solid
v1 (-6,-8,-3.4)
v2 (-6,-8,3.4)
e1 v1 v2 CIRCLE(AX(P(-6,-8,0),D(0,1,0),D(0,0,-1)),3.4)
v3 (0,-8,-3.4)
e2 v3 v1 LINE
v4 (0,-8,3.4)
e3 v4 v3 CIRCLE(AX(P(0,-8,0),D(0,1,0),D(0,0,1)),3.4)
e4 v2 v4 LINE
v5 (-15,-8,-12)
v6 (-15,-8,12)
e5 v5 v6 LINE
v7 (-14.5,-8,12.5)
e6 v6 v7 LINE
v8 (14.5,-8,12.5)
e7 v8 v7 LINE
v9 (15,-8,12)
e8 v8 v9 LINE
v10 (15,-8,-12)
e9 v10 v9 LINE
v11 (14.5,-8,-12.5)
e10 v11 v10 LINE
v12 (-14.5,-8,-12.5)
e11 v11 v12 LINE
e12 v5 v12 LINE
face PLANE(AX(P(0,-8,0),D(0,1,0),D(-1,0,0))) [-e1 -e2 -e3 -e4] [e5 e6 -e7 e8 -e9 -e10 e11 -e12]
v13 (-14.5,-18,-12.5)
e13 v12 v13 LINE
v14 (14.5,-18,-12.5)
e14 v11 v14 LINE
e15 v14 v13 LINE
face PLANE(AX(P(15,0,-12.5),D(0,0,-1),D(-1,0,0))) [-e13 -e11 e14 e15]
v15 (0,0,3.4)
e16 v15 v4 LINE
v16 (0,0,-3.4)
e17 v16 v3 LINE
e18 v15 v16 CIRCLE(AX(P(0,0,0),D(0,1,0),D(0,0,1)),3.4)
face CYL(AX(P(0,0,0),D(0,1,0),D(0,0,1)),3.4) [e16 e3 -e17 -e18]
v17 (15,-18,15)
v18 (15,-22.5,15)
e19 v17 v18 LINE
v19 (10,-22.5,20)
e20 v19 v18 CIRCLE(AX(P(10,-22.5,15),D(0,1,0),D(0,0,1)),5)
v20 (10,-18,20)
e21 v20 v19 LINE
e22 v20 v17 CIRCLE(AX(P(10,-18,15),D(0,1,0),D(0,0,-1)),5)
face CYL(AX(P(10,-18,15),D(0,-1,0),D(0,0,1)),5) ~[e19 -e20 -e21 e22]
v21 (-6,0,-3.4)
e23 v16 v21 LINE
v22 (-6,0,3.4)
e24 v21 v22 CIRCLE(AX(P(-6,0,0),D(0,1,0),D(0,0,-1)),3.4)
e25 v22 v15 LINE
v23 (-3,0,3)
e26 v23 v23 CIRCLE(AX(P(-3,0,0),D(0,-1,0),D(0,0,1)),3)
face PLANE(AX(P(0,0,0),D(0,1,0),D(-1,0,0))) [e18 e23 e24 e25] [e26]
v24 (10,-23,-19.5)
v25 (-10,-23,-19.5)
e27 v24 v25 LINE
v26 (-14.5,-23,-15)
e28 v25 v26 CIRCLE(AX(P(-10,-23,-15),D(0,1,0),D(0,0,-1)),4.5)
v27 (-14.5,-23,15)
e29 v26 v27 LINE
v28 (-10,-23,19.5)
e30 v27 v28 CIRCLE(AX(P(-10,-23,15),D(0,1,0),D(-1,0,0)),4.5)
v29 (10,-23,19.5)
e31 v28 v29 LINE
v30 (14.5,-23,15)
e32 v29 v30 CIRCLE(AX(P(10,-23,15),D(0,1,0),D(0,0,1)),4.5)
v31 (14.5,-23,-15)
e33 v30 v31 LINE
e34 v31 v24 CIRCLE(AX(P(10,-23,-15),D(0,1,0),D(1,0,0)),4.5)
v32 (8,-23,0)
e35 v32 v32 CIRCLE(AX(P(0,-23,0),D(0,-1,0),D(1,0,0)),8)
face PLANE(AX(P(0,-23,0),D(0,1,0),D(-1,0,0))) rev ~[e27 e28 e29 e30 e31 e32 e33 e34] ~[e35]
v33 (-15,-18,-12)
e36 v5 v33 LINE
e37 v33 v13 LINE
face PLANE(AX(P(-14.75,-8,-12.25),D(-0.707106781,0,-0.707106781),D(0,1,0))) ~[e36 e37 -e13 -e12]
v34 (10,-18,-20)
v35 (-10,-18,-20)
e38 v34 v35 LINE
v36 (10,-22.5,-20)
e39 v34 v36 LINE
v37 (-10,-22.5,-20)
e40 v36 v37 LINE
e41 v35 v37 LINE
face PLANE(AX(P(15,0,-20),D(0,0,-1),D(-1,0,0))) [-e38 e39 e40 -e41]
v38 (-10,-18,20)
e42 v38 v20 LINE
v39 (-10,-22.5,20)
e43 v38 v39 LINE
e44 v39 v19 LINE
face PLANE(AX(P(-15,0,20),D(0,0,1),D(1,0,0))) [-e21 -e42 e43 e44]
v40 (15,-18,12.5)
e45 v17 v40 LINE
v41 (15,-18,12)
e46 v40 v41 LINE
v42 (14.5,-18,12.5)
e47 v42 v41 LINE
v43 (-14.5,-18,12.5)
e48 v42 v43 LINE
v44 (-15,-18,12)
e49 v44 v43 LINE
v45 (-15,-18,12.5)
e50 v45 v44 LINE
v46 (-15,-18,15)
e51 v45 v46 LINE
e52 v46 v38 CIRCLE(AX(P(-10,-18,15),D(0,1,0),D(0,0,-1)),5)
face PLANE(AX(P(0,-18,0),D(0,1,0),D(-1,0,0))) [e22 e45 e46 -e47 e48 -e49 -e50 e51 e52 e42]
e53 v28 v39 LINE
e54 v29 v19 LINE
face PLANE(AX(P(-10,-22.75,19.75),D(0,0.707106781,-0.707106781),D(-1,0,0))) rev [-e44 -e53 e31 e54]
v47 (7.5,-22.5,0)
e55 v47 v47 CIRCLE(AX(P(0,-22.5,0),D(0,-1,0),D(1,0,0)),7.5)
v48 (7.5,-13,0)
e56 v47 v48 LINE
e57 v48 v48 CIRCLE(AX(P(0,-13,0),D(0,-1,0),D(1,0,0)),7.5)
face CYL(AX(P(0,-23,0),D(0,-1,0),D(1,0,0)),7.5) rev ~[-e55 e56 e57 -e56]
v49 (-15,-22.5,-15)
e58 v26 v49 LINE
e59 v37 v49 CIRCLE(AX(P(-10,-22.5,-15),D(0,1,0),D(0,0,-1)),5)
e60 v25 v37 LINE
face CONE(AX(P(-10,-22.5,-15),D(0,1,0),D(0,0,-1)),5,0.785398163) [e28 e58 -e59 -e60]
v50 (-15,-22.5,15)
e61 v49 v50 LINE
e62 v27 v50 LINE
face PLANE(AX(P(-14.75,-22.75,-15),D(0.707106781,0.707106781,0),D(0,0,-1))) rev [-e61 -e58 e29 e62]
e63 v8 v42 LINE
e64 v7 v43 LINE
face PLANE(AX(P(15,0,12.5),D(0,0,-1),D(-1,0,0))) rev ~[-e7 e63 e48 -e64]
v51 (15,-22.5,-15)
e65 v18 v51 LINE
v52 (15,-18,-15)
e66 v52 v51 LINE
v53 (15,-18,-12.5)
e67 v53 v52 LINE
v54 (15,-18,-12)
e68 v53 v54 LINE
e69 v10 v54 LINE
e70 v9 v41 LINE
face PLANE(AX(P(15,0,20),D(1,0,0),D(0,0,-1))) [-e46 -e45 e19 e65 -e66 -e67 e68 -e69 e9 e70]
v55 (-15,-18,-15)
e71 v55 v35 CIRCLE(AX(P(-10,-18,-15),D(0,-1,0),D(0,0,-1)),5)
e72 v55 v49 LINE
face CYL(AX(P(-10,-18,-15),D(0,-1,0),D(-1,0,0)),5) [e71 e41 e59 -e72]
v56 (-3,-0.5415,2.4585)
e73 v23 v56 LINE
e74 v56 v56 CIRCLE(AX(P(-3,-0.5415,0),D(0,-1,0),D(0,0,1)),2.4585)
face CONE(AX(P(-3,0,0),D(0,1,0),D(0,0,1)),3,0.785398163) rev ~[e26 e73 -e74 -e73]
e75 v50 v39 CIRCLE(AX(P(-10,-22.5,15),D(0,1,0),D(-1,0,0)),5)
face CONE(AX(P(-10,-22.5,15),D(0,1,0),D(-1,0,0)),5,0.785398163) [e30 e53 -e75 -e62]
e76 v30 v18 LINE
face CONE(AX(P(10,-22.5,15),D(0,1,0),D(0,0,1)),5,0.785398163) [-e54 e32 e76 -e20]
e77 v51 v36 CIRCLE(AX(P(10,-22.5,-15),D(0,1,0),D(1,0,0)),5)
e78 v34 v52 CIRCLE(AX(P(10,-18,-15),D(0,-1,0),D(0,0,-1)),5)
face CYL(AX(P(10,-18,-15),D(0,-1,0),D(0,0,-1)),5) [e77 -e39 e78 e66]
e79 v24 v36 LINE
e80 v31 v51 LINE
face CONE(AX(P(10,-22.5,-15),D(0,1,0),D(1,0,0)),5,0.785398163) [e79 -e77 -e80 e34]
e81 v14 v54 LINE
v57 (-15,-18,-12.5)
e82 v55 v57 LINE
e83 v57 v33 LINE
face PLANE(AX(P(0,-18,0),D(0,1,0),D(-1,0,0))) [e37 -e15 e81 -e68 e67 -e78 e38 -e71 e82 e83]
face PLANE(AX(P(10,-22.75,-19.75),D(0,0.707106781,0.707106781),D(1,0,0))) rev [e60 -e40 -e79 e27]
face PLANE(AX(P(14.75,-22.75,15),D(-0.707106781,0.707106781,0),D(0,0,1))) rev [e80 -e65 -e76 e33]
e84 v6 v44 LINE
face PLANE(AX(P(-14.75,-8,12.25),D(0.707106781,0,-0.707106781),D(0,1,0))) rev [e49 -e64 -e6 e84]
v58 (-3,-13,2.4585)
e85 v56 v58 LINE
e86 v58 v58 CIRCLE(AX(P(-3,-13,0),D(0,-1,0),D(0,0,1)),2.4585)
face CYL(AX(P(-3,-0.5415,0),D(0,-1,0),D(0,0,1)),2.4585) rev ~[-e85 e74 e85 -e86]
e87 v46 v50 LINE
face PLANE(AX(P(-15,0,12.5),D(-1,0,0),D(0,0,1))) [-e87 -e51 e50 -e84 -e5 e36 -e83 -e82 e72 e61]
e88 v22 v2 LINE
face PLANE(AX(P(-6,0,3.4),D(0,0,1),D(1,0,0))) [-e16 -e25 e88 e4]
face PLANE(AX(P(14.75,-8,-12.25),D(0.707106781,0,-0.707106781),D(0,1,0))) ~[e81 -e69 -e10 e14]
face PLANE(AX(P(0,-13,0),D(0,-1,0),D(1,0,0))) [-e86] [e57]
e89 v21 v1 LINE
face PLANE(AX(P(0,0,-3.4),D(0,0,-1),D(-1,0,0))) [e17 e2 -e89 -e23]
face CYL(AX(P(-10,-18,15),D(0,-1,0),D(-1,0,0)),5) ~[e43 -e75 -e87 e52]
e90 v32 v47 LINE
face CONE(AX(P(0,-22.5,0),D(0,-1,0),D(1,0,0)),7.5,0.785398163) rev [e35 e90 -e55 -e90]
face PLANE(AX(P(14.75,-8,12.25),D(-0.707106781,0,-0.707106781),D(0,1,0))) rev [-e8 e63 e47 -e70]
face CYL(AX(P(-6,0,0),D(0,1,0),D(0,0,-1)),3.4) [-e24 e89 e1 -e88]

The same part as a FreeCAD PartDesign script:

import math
import FreeCAD as App
import Part
import Sketcher
from FreeCAD import Vector


def edges_at(feature, points):
    """Names of the edges that pass closest to the given points."""
    edges = feature.Shape.Edges
    near = lambda p: min(range(len(edges)), key=lambda i: edges[i].distToShape(Part.Vertex(*p))[0])
    return sorted({f"Edge{near(p) + 1}" for p in points})

doc = App.newDocument("Part")
body = doc.addObject("PartDesign::Body", "Body")

sketch1 = doc.addObject("Sketcher::SketchObject", "Sketch")
body.addObject(sketch1)
sketch1.AttachmentSupport = (doc.XZ_Plane, [""])
sketch1.MapMode = "FlatFace"
sketch1.addGeometry([
    Part.LineSegment(Vector(-15, 20, 0), Vector(15, 20, 0)),
    Part.LineSegment(Vector(15, 20, 0), Vector(15, -20, 0)),
    Part.LineSegment(Vector(15, -20, 0), Vector(-15, -20, 0)),
    Part.LineSegment(Vector(-15, -20, 0), Vector(-15, 20, 0)),
], False)
sketch1.addConstraint([
    Sketcher.Constraint("Coincident", 0, 2, 1, 1),
    Sketcher.Constraint("Coincident", 1, 2, 2, 1),
    Sketcher.Constraint("Coincident", 2, 2, 3, 1),
    Sketcher.Constraint("Coincident", 3, 2, 0, 1),
    Sketcher.Constraint("Horizontal", 0),
    Sketcher.Constraint("Vertical", 1),
    Sketcher.Constraint("Horizontal", 2),
    Sketcher.Constraint("Vertical", 3),
    Sketcher.Constraint("Symmetric", 0, 2, 2, 2, -1, 1),
    Sketcher.Constraint("DistanceX", 0, 1, 0, 2, 30.0),
    Sketcher.Constraint("DistanceY", 1, 2, 1, 1, 40.0),
])
pad1 = doc.addObject("PartDesign::Pad", "Pad")
body.addObject(pad1)
pad1.Profile = sketch1
pad1.Length = 23

sketch2 = doc.addObject("Sketcher::SketchObject", "Sketch001")
body.addObject(sketch2)
sketch2.AttachmentSupport = (doc.XZ_Plane, [""])
sketch2.MapMode = "FlatFace"
sketch2.addGeometry([
    Part.LineSegment(Vector(-15, 20, 0), Vector(15, 20, 0)),
    Part.LineSegment(Vector(15, 20, 0), Vector(15, -20, 0)),
    Part.LineSegment(Vector(15, -20, 0), Vector(-15, -20, 0)),
    Part.LineSegment(Vector(-15, -20, 0), Vector(-15, 20, 0)),
    Part.ArcOfCircle(Part.Circle(Vector(-6, 0, 0), Vector(0, 0, 1), 3.4), math.radians(90), math.radians(270)),
    Part.LineSegment(Vector(-6, -3.4, 0), Vector(0, -3.4, 0)),
    Part.ArcOfCircle(Part.Circle(Vector(0, 0, 0), Vector(0, 0, 1), 3.4), math.radians(-90), math.radians(90)),
    Part.LineSegment(Vector(0, 3.4, 0), Vector(-6, 3.4, 0)),
], False)
sketch2.addConstraint([
    Sketcher.Constraint("Coincident", 0, 2, 1, 1),
    Sketcher.Constraint("Coincident", 1, 2, 2, 1),
    Sketcher.Constraint("Coincident", 2, 2, 3, 1),
    Sketcher.Constraint("Coincident", 3, 2, 0, 1),
    Sketcher.Constraint("Tangent", 4, 2, 5, 1),
    Sketcher.Constraint("Tangent", 5, 2, 6, 1),
    Sketcher.Constraint("Tangent", 6, 2, 7, 1),
    Sketcher.Constraint("Tangent", 7, 2, 4, 1),
    Sketcher.Constraint("Horizontal", 0),
    Sketcher.Constraint("Vertical", 1),
    Sketcher.Constraint("Horizontal", 2),
    Sketcher.Constraint("Vertical", 3),
    Sketcher.Constraint("Horizontal", 5),
    Sketcher.Constraint("Horizontal", 7),
    Sketcher.Constraint("Coincident", 6, 3, -1, 1),
    Sketcher.Constraint("Symmetric", 0, 2, 2, 2, -1, 1),
    Sketcher.Constraint("Radius", 4, 3.4),
    Sketcher.Constraint("DistanceX", 0, 1, 0, 2, 30.0),
    Sketcher.Constraint("DistanceX", 5, 1, 5, 2, 6.0),
    Sketcher.Constraint("DistanceY", 1, 2, 1, 1, 40.0),
])
pocket1 = doc.addObject("PartDesign::Pocket", "Pocket")
body.addObject(pocket1)
pocket1.Profile = sketch2
pocket1.Length = 8
pocket1.Reversed = True

sketch3 = doc.addObject("Sketcher::SketchObject", "Sketch002")
body.addObject(sketch3)
sketch3.AttachmentSupport = (doc.XZ_Plane, [""])
sketch3.MapMode = "FlatFace"
sketch3.AttachmentOffset = App.Placement(Vector(0, 0, 23), App.Rotation())
sketch3.addGeometry(Part.Circle(Vector(0, 0, 0), Vector(0, 0, 1), 8), False)
sketch3.addConstraint([
    Sketcher.Constraint("Coincident", 0, 3, -1, 1),
    Sketcher.Constraint("Diameter", 0, 15.0),
])
pocket2 = doc.addObject("PartDesign::Pocket", "Pocket001")
body.addObject(pocket2)
pocket2.Profile = sketch3
pocket2.Length = 10

sketch4 = doc.addObject("Sketcher::SketchObject", "Sketch003")
body.addObject(sketch4)
sketch4.AttachmentSupport = (doc.XZ_Plane, [""])
sketch4.MapMode = "FlatFace"
sketch4.addGeometry([
    Part.LineSegment(Vector(-15, 12, 0), Vector(-15, 20, 0)),
    Part.LineSegment(Vector(-15, 20, 0), Vector(15, 20, 0)),
    Part.LineSegment(Vector(15, 20, 0), Vector(15, 12, 0)),
    Part.LineSegment(Vector(15, 12, 0), Vector(-15, 12, 0)),
    Part.LineSegment(Vector(-15, -20, 0), Vector(-15, -12, 0)),
    Part.LineSegment(Vector(-15, -12, 0), Vector(15, -12, 0)),
    Part.LineSegment(Vector(15, -12, 0), Vector(15, -20, 0)),
    Part.LineSegment(Vector(15, -20, 0), Vector(-15, -20, 0)),
], False)
sketch4.addConstraint([
    Sketcher.Constraint("Coincident", 0, 2, 1, 1),
    Sketcher.Constraint("Coincident", 1, 2, 2, 1),
    Sketcher.Constraint("Coincident", 2, 2, 3, 1),
    Sketcher.Constraint("Coincident", 3, 2, 0, 1),
    Sketcher.Constraint("Coincident", 4, 2, 5, 1),
    Sketcher.Constraint("Coincident", 5, 2, 6, 1),
    Sketcher.Constraint("Coincident", 6, 2, 7, 1),
    Sketcher.Constraint("Coincident", 7, 2, 4, 1),
    Sketcher.Constraint("Vertical", 0),
    Sketcher.Constraint("Horizontal", 1),
    Sketcher.Constraint("Vertical", 2),
    Sketcher.Constraint("Horizontal", 3),
    Sketcher.Constraint("Vertical", 4),
    Sketcher.Constraint("Horizontal", 5),
    Sketcher.Constraint("Vertical", 6),
    Sketcher.Constraint("Horizontal", 7),
    Sketcher.Constraint("Symmetric", 2, 2, 4, 2, -1, 1),
    Sketcher.Constraint("Symmetric", 0, 2, 6, 2, -1, 1),
    Sketcher.Constraint("Vertical", 3, 2, 4, 2),
    Sketcher.Constraint("DistanceX", 1, 1, 1, 2, 30.0),
    Sketcher.Constraint("DistanceY", 4, 2, 3, 2, 25.0),
    Sketcher.Constraint("DistanceY", 6, 2, 1, 2, 40.0),
])
pocket3 = doc.addObject("PartDesign::Pocket", "Pocket002")
body.addObject(pocket3)
pocket3.Profile = sketch4
pocket3.Length = 18
pocket3.Reversed = True

sketch5 = doc.addObject("Sketcher::SketchObject", "Sketch004")
body.addObject(sketch5)
sketch5.AttachmentSupport = (doc.XZ_Plane, [""])
sketch5.MapMode = "FlatFace"
sketch5.addGeometry(Part.Circle(Vector(-3, 0, 0), Vector(0, 0, 1), 2.5), False)
sketch5.addConstraint([
    Sketcher.Constraint("PointOnObject", 0, 3, -1),
    Sketcher.Constraint("Diameter", 0, 4.917),
    Sketcher.Constraint("DistanceX", 0, 3, -1, 1, 3.0),
])
doc.recompute()
hole = doc.addObject("PartDesign::Hole", "Hole")
body.addObject(hole)
hole.Profile = sketch5
hole.ThreadType = "None"
hole.Diameter = 4.917
hole.DepthType = "Dimension"
hole.Depth = 13
hole.DrillPoint = "Flat"
hole.HoleCutType = "Countersink"
hole.HoleCutDiameter = 6
hole.HoleCutCountersinkAngle = 90
hole.Reversed = True
doc.recompute()

fillet = doc.addObject("PartDesign::Fillet", "Fillet")
body.addObject(fillet)
fillet.Base = (hole, edges_at(hole, [
    (-15, -20.5, 20),
    (-15, -20.5, -20),
    (15, -20.5, -20),
    (15, -20.5, 20),
]))
fillet.Radius = 5
doc.recompute()

chamfer = doc.addObject("PartDesign::Chamfer", "Chamfer")
body.addObject(chamfer)
chamfer.Base = (fillet, edges_at(fillet, [
    (0, -23, 20),
    (-13.536, -23, 18.535),
    (-15, -23, 0),
    (-13.536, -23, -18.535),
    (0, -23, -20),
    (13.536, -23, -18.535),
    (15, -23, 0),
    (13.536, -23, 18.535),
    (-7.5, -23, 0),
    (-15, -13, 12.5),
    (-15, -13, -12.5),
    (15, -13, -12.5),
    (15, -13, 12.5),
]))
chamfer.Size = 0.5

doc.recompute()
